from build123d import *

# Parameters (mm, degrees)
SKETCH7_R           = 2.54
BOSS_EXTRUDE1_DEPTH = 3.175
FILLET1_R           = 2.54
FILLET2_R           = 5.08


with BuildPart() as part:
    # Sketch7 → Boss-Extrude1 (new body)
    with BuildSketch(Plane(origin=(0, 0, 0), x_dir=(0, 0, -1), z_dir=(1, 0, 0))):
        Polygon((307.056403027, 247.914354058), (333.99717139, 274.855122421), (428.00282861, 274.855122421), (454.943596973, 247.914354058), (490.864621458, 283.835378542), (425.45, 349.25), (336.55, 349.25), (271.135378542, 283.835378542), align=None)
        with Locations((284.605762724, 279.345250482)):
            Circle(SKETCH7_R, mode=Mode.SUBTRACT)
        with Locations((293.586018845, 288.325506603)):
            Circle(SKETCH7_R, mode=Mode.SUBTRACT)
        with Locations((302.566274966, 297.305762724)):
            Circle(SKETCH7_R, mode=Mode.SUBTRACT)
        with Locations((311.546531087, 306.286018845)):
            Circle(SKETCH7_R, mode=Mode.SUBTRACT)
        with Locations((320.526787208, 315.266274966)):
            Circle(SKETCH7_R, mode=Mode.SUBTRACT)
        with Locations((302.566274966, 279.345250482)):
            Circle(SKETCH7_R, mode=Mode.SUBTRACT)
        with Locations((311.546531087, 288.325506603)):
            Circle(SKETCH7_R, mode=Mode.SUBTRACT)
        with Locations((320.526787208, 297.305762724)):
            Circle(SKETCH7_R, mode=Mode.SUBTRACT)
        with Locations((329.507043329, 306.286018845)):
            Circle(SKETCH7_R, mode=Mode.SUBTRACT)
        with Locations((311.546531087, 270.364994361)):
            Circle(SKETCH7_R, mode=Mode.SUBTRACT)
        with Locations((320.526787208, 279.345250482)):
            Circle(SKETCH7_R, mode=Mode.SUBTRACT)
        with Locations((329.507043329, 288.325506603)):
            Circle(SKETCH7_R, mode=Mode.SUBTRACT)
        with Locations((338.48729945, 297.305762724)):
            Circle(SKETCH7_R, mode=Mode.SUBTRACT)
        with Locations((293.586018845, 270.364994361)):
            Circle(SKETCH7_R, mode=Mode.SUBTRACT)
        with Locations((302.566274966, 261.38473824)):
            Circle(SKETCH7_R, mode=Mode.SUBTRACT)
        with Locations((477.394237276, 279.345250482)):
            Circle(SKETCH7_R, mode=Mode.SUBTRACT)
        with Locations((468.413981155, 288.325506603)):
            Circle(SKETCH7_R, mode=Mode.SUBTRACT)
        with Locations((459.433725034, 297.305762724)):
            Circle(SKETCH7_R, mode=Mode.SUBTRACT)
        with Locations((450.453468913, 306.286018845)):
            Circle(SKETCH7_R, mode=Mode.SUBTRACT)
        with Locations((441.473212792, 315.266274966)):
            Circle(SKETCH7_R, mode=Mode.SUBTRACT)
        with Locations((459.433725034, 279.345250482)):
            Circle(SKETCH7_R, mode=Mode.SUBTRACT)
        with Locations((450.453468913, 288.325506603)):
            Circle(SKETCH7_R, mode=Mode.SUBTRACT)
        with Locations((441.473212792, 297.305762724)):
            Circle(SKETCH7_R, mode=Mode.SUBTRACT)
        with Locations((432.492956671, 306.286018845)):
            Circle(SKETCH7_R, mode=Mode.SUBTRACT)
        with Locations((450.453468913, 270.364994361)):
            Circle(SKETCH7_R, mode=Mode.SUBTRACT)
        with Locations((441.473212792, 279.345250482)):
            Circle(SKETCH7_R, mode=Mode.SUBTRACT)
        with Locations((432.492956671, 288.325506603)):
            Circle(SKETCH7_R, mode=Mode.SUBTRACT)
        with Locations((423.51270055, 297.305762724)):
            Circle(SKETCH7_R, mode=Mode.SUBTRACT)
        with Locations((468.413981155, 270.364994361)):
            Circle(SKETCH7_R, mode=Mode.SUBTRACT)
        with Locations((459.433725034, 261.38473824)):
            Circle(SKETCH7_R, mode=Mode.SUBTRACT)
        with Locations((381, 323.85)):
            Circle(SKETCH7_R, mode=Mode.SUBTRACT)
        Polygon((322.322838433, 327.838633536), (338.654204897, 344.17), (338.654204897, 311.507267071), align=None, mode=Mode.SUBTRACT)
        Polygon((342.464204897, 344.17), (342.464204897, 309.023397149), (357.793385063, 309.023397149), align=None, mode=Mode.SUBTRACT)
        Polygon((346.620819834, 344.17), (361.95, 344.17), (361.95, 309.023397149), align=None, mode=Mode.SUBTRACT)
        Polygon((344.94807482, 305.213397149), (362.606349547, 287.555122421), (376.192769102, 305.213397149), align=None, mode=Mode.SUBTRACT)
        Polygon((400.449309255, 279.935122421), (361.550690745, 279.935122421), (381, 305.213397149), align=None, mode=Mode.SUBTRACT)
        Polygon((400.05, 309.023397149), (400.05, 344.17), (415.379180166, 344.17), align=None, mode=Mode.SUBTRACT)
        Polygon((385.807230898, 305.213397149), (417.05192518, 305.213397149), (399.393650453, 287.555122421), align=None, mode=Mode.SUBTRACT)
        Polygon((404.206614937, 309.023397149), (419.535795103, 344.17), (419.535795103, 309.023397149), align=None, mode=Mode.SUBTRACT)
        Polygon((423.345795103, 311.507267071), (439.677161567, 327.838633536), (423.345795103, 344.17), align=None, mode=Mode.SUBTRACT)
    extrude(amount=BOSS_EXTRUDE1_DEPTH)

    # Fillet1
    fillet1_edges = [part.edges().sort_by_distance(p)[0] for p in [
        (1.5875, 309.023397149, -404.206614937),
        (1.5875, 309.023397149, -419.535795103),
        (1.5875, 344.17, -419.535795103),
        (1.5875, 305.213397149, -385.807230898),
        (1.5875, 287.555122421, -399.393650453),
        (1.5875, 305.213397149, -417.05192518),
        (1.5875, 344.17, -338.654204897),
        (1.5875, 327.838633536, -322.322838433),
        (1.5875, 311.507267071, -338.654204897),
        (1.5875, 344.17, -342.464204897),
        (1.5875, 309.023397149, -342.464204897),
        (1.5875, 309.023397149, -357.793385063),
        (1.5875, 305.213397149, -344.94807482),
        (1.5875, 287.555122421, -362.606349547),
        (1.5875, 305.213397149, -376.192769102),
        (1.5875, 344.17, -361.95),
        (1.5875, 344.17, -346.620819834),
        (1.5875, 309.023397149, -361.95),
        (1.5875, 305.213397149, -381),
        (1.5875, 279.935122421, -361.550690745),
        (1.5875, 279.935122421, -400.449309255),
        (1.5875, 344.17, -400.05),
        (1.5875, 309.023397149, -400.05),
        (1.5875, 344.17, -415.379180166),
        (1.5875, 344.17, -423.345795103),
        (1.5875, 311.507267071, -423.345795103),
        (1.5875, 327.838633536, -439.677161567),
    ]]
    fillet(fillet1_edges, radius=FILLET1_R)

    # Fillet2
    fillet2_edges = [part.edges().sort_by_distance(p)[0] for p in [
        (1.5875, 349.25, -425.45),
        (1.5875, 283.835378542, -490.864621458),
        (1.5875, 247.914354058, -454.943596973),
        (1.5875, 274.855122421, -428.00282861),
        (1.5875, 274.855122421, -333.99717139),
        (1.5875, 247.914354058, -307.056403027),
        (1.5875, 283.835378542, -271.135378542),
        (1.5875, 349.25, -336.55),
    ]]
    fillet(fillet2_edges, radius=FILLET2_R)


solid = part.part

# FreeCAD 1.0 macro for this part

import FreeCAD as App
import Part
import Sketcher
from FreeCAD import Vector
Q = App.Units.Quantity


def edges_at(feature, points):
    """Names of the edges that pass closest to the given points."""
    edges = feature.Shape.Edges
    near = lambda p: min(range(len(edges)), key=lambda i: edges[i].distToShape(Part.Vertex(*p))[0])
    return sorted({f"Edge{near(p) + 1}" for p in points})


def add_polygon(sketch, points):
    """Adds a closed chain of lines whose ends are joined by coincident constraints."""
    first, n = sketch.GeometryCount, len(points)
    for a, b in zip(points, points[1:] + points[:1]):
        sketch.addGeometry(Part.LineSegment(App.Vector(*a, 0), App.Vector(*b, 0)), False)
    for i in range(n):
        sketch.addConstraint(Sketcher.Constraint("Coincident", first + i, 2, first + (i + 1) % n, 1))

doc = App.newDocument("Part")
body = doc.addObject("PartDesign::Body", "Body")

sketch1 = body.newObject("Sketcher::SketchObject", "Sketch")
sketch1.AttachmentSupport = (doc.getObject("YZ_Plane"), [""])
sketch1.MapMode = "FlatFace"
add_polygon(sketch1, [(247.914354, -307.056403), (274.855122, -333.997171), (274.855122, -428.002829), (247.914354, -454.943597), (283.835379, -490.864621), (349.25, -425.45), (349.25, -336.55), (283.835379, -271.135379)])
sketch1.addGeometry(Part.Circle(Vector(261.384738, -302.566275, 0), Vector(0, 0, 1), 2.54), False)
sketch1.addGeometry(Part.Circle(Vector(270.364994, -293.586019, 0), Vector(0, 0, 1), 2.54), False)
sketch1.addGeometry(Part.Circle(Vector(279.34525, -284.605763, 0), Vector(0, 0, 1), 2.54), False)
sketch1.addGeometry(Part.Circle(Vector(279.34525, -302.566275, 0), Vector(0, 0, 1), 2.54), False)
sketch1.addGeometry(Part.Circle(Vector(270.364994, -311.546531, 0), Vector(0, 0, 1), 2.54), False)
sketch1.addGeometry(Part.Circle(Vector(279.34525, -320.526787, 0), Vector(0, 0, 1), 2.54), False)
sketch1.addGeometry(Part.Circle(Vector(288.325507, -293.586019, 0), Vector(0, 0, 1), 2.54), False)
sketch1.addGeometry(Part.Circle(Vector(288.325507, -311.546531, 0), Vector(0, 0, 1), 2.54), False)
sketch1.addGeometry(Part.Circle(Vector(288.325507, -329.507043, 0), Vector(0, 0, 1), 2.54), False)
sketch1.addGeometry(Part.Circle(Vector(297.305763, -302.566275, 0), Vector(0, 0, 1), 2.54), False)
sketch1.addGeometry(Part.Circle(Vector(297.305763, -320.526787, 0), Vector(0, 0, 1), 2.54), False)
sketch1.addGeometry(Part.Circle(Vector(297.305763, -338.487299, 0), Vector(0, 0, 1), 2.54), False)
add_polygon(sketch1, [(287.555122, -362.60635), (305.213397, -344.948075), (305.213397, -376.192769)])
sketch1.addGeometry(Part.Circle(Vector(261.384738, -459.433725, 0), Vector(0, 0, 1), 2.54), False)
sketch1.addGeometry(Part.Circle(Vector(270.364994, -450.453469, 0), Vector(0, 0, 1), 2.54), False)
sketch1.addGeometry(Part.Circle(Vector(279.34525, -441.473213, 0), Vector(0, 0, 1), 2.54), False)
sketch1.addGeometry(Part.Circle(Vector(270.364994, -468.413981, 0), Vector(0, 0, 1), 2.54), False)
sketch1.addGeometry(Part.Circle(Vector(279.34525, -459.433725, 0), Vector(0, 0, 1), 2.54), False)
sketch1.addGeometry(Part.Circle(Vector(279.34525, -477.394237, 0), Vector(0, 0, 1), 2.54), False)
add_polygon(sketch1, [(305.213397, -381), (279.935122, -400.449309), (279.935122, -361.550691)])
add_polygon(sketch1, [(287.555122, -399.39365), (305.213397, -385.807231), (305.213397, -417.051925)])
sketch1.addGeometry(Part.Circle(Vector(297.305763, -423.512701, 0), Vector(0, 0, 1), 2.54), False)
sketch1.addGeometry(Part.Circle(Vector(288.325507, -432.492957, 0), Vector(0, 0, 1), 2.54), False)
sketch1.addGeometry(Part.Circle(Vector(288.325507, -450.453469, 0), Vector(0, 0, 1), 2.54), False)
sketch1.addGeometry(Part.Circle(Vector(288.325507, -468.413981, 0), Vector(0, 0, 1), 2.54), False)
sketch1.addGeometry(Part.Circle(Vector(297.305763, -441.473213, 0), Vector(0, 0, 1), 2.54), False)
sketch1.addGeometry(Part.Circle(Vector(297.305763, -459.433725, 0), Vector(0, 0, 1), 2.54), False)
sketch1.addGeometry(Part.Circle(Vector(306.286019, -311.546531, 0), Vector(0, 0, 1), 2.54), False)
sketch1.addGeometry(Part.Circle(Vector(306.286019, -329.507043, 0), Vector(0, 0, 1), 2.54), False)
sketch1.addGeometry(Part.Circle(Vector(315.266275, -320.526787, 0), Vector(0, 0, 1), 2.54), False)
add_polygon(sketch1, [(311.507267, -338.654205), (327.838634, -322.322838), (344.17, -338.654205)])
add_polygon(sketch1, [(309.023397, -342.464205), (344.17, -342.464205), (309.023397, -357.793385)])
add_polygon(sketch1, [(309.023397, -361.95), (344.17, -346.62082), (344.17, -361.95)])
sketch1.addGeometry(Part.Circle(Vector(306.286019, -432.492957, 0), Vector(0, 0, 1), 2.54), False)
sketch1.addGeometry(Part.Circle(Vector(306.286019, -450.453469, 0), Vector(0, 0, 1), 2.54), False)
sketch1.addGeometry(Part.Circle(Vector(315.266275, -441.473213, 0), Vector(0, 0, 1), 2.54), False)
sketch1.addGeometry(Part.Circle(Vector(323.85, -381, 0), Vector(0, 0, 1), 2.54), False)
add_polygon(sketch1, [(344.17, -415.37918), (309.023397, -400.05), (344.17, -400.05)])
add_polygon(sketch1, [(309.023397, -419.535795), (309.023397, -404.206615), (344.17, -419.535795)])
add_polygon(sketch1, [(327.838634, -439.677162), (311.507267, -423.345795), (344.17, -423.345795)])
sketch1.addConstraint([
    Sketcher.Constraint("Vertical", 1),
    Sketcher.Constraint("Vertical", 5),
    Sketcher.Constraint("Vertical", 21),
    Sketcher.Constraint("Vertical", 30),
    Sketcher.Constraint("Vertical", 33),
    Sketcher.Constraint("Horizontal", 46),
    Sketcher.Constraint("Horizontal", 47),
    Sketcher.Constraint("Vertical", 49),
    Sketcher.Constraint("Vertical", 51),
    Sketcher.Constraint("Horizontal", 52),
    Sketcher.Constraint("Horizontal", 58),
    Sketcher.Constraint("Vertical", 59),
    Sketcher.Constraint("Vertical", 60),
    Sketcher.Constraint("Horizontal", 62),
    Sketcher.Constraint("Horizontal", 64),
    Sketcher.Constraint("Equal", 8, 9),
    Sketcher.Constraint("Equal", 9, 10),
    Sketcher.Constraint("Equal", 10, 11),
    Sketcher.Constraint("Equal", 11, 12),
    Sketcher.Constraint("Equal", 12, 13),
    Sketcher.Constraint("Equal", 13, 14),
    Sketcher.Constraint("Equal", 14, 15),
    Sketcher.Constraint("Equal", 15, 16),
    Sketcher.Constraint("Equal", 16, 17),
    Sketcher.Constraint("Equal", 17, 18),
    Sketcher.Constraint("Equal", 18, 19),
    Sketcher.Constraint("Equal", 19, 23),
    Sketcher.Constraint("Equal", 23, 24),
    Sketcher.Constraint("Equal", 24, 25),
    Sketcher.Constraint("Equal", 25, 26),
    Sketcher.Constraint("Equal", 26, 27),
    Sketcher.Constraint("Equal", 27, 28),
    Sketcher.Constraint("Equal", 28, 35),
    Sketcher.Constraint("Equal", 35, 36),
    Sketcher.Constraint("Equal", 36, 37),
    Sketcher.Constraint("Equal", 37, 38),
    Sketcher.Constraint("Equal", 38, 39),
    Sketcher.Constraint("Equal", 39, 40),
    Sketcher.Constraint("Equal", 40, 41),
    Sketcher.Constraint("Equal", 41, 42),
    Sketcher.Constraint("Equal", 42, 43),
    Sketcher.Constraint("Equal", 43, 53),
    Sketcher.Constraint("Equal", 53, 54),
    Sketcher.Constraint("Equal", 54, 55),
    Sketcher.Constraint("Equal", 55, 56),
    Sketcher.Constraint("Perpendicular", 0, 2),
    Sketcher.Constraint("Perpendicular", 2, 3),
    Sketcher.Constraint("Perpendicular", 3, 4),
    Sketcher.Constraint("Perpendicular", 4, 6),
    Sketcher.Constraint("Perpendicular", 6, 7),
    Sketcher.Constraint("Parallel", 7, 20),
    Sketcher.Constraint("Parallel", 22, 31),
    Sketcher.Constraint("Parallel", 29, 32),
    Sketcher.Constraint("Perpendicular", 20, 34),
    Sketcher.Constraint("Perpendicular", 34, 44),
    Sketcher.Constraint("Perpendicular", 44, 45),
    Sketcher.Constraint("Parallel", 48, 50),
    Sketcher.Constraint("Parallel", 57, 61),
    Sketcher.Constraint("Parallel", 45, 63),
    Sketcher.Constraint("Perpendicular", 63, 65),
    Sketcher.Constraint("Horizontal", 8, 3, 11, 3),
    Sketcher.Constraint("Horizontal", 9, 3, 14, 3),
    Sketcher.Constraint("Horizontal", 12, 3, 15, 3),
    Sketcher.Constraint("Horizontal", 11, 3, 17, 3),
    Sketcher.Constraint("Horizontal", 13, 3, 18, 3),
    Sketcher.Constraint("Horizontal", 23, 3, 27, 3),
    Sketcher.Constraint("Horizontal", 24, 3, 37, 3),
    Sketcher.Constraint("Horizontal", 26, 3, 38, 3),
    Sketcher.Constraint("Horizontal", 25, 3, 39, 3),
    Sketcher.Constraint("Horizontal", 27, 3, 40, 3),
    Sketcher.Constraint("Horizontal", 15, 3, 41, 3),
    Sketcher.Constraint("Horizontal", 16, 3, 42, 3),
    Sketcher.Constraint("Horizontal", 18, 3, 43, 3),
    Sketcher.Constraint("Horizontal", 36, 3, 53, 3),
    Sketcher.Constraint("Horizontal", 37, 3, 54, 3),
    Sketcher.Constraint("Horizontal", 39, 3, 55, 3),
    Sketcher.Constraint("Horizontal", 56, 3, 31, 2),
    Sketcher.Constraint("Vertical", 10, 3, 11, 3),
    Sketcher.Constraint("Vertical", 9, 3, 12, 3),
    Sketcher.Constraint("Vertical", 11, 3, 13, 3),
    Sketcher.Constraint("Vertical", 14, 3, 15, 3),
    Sketcher.Constraint("Vertical", 15, 3, 16, 3),
    Sketcher.Constraint("Vertical", 17, 3, 18, 3),
    Sketcher.Constraint("Vertical", 18, 3, 19, 3),
    Sketcher.Constraint("Vertical", 8, 3, 23, 3),
    Sketcher.Constraint("Vertical", 12, 3, 24, 3),
    Sketcher.Constraint("Vertical", 13, 3, 25, 3),
    Sketcher.Constraint("Vertical", 24, 3, 26, 3),
    Sketcher.Constraint("Vertical", 25, 3, 27, 3),
    Sketcher.Constraint("Vertical", 27, 3, 28, 3),
    Sketcher.Constraint("Vertical", 19, 3, 35, 3),
    Sketcher.Constraint("Vertical", 16, 3, 36, 3),
    Sketcher.Constraint("Vertical", 36, 3, 37, 3),
    Sketcher.Constraint("Vertical", 37, 3, 38, 3),
    Sketcher.Constraint("Vertical", 35, 3, 39, 3),
    Sketcher.Constraint("Vertical", 39, 3, 40, 3),
    Sketcher.Constraint("Vertical", 41, 3, 42, 3),
    Sketcher.Constraint("Vertical", 42, 3, 53, 3),
    Sketcher.Constraint("Vertical", 53, 3, 54, 3),
    Sketcher.Constraint("Vertical", 43, 3, 55, 3),
    Sketcher.Constraint("Vertical", 3, 2, 6, 2),
    Sketcher.Constraint("Vertical", 2, 2, 7, 2),
    Sketcher.Constraint("Vertical", 21, 2, 31, 2),
    Sketcher.Constraint("Vertical", 31, 2, 32, 2),
    Sketcher.Constraint("Vertical", 22, 2, 34, 2),
    Sketcher.Constraint("Vertical", 45, 2, 47, 2),
    Sketcher.Constraint("Vertical", 47, 2, 50, 2),
    Sketcher.Constraint("Vertical", 49, 2, 52, 2),
    Sketcher.Constraint("Vertical", 52, 2, 57, 2),
    Sketcher.Constraint("Vertical", 51, 2, 58, 2),
    Sketcher.Constraint("Vertical", 57, 2, 60, 2),
    Sketcher.Constraint("Vertical", 59, 2, 61, 2),
    Sketcher.Constraint("Vertical", 46, 2, 63, 2),
    Sketcher.Constraint("Vertical", 61, 2, 64, 2),
    Sketcher.Constraint("Vertical", 44, 2, 65, 2),
    Sketcher.Constraint("Equal", 21, 33),
    Sketcher.Constraint("Equal", 51, 59),
    Sketcher.Constraint("Diameter", 8, Q("0.2 in")),
    Sketcher.Constraint("Distance", 3, Q("2 in")),
    Sketcher.Constraint("DistanceY", 5, 1, 5, 2, Q("3.5 in")),
    Sketcher.Constraint("DistanceY", 56, 3, -1, 1, Q("15 in")),
    Sketcher.Constraint("Distance", 0, Q("1.5 in")),
    Sketcher.Constraint("DistanceX", -1, 1, 56, 3, Q("12.75 in")),
    Sketcher.Constraint("DistanceX", -1, 1, 4, 2, Q("13.75 in")),
    Sketcher.Constraint("DistanceY", 4, 2, -1, 1, Q("16.75 in")),
    Sketcher.Constraint("DistanceX", -1, 1, 45, 2, Q("13.55 in")),
    Sketcher.Constraint("DistanceY", 51, 2, -1, 1, Q("14.25 in")),
    Sketcher.Constraint("DistanceY", 57, 2, -1, 1, Q("15.75 in")),
    Sketcher.Constraint("DistanceY", 30, 1, 30, 2, Q("38.898619 mm")),
    Sketcher.Constraint("DistanceY", 49, 1, 49, 2, Q("15.32918 mm")),
    Sketcher.Constraint("DistanceY", 19, 3, -1, 1, Q("338.487299 mm")),
    Sketcher.Constraint("DistanceY", 35, 3, -1, 1, Q("423.512701 mm")),
    Sketcher.Constraint("Distance", 20, Q("24.972572 mm")),
    Sketcher.Constraint("Distance", 22, Q("22.280158 mm")),
    Sketcher.Constraint("Distance", 44, Q("23.09604 mm")),
    Sketcher.Constraint("DistanceX", 47, 1, 47, 2, Q("35.146603 mm")),
    Sketcher.Constraint("DistanceY", 1, 2, 1, 1, Q("94.005657 mm")),
    Sketcher.Constraint("DistanceX", -1, 1, 8, 3, Q("261.384738 mm")),
    Sketcher.Constraint("DistanceY", 9, 3, -1, 1, Q("293.586019 mm")),
    Sketcher.Constraint("DistanceX", -1, 1, 10, 3, Q("279.34525 mm")),
    Sketcher.Constraint("DistanceY", 12, 3, -1, 1, Q("311.546531 mm")),
    Sketcher.Constraint("DistanceY", 24, 3, -1, 1, Q("450.453469 mm")),
    Sketcher.Constraint("DistanceY", 26, 3, -1, 1, Q("468.413981 mm")),
    Sketcher.Constraint("DistanceX", -1, 1, 41, 3, Q("306.286019 mm")),
    Sketcher.Constraint("DistanceY", 21, 2, -1, 1, Q("376.192769 mm")),
    Sketcher.Constraint("DistanceY", 32, 2, -1, 1, Q("385.807231 mm")),
    Sketcher.Constraint("DistanceY", 44, 2, -1, 1, Q("322.322838 mm")),
    Sketcher.Constraint("DistanceY", 65, 2, -1, 1, Q("439.677162 mm")),
    Sketcher.Constraint("DistanceY", 8, 3, -1, 1, Q("302.566275 mm")),
    Sketcher.Constraint("DistanceX", -1, 1, 9, 3, Q("270.364994 mm")),
    Sketcher.Constraint("DistanceY", 10, 3, -1, 1, Q("284.605763 mm")),
    Sketcher.Constraint("DistanceY", 13, 3, -1, 1, Q("320.526787 mm")),
    Sketcher.Constraint("DistanceX", -1, 1, 14, 3, Q("288.325507 mm")),
    Sketcher.Constraint("DistanceY", 16, 3, -1, 1, Q("329.507043 mm")),
    Sketcher.Constraint("DistanceX", -1, 1, 17, 3, Q("297.305763 mm")),
    Sketcher.Constraint("DistanceY", 23, 3, -1, 1, Q("459.433725 mm")),
    Sketcher.Constraint("DistanceY", 25, 3, -1, 1, Q("441.473213 mm")),
    Sketcher.Constraint("DistanceY", 28, 3, -1, 1, Q("477.394237 mm")),
    Sketcher.Constraint("DistanceY", 36, 3, -1, 1, Q("432.492957 mm")),
    Sketcher.Constraint("DistanceX", -1, 1, 43, 3, Q("315.266275 mm")),
    Sketcher.Constraint("DistanceX", -1, 1, 20, 2, Q("305.213397 mm")),
    Sketcher.Constraint("DistanceY", 47, 2, -1, 1, Q("342.464205 mm")),
    Sketcher.Constraint("DistanceY", 60, 2, -1, 1, Q("404.206615 mm")),
])
pad1 = body.newObject("PartDesign::Pad", "Pad")
pad1.Profile = sketch1
pad1.Length = Q("0.125 in")
doc.recompute()

fillet = body.newObject("PartDesign::Fillet", "Fillet")
fillet.Base = (pad1, edges_at(pad1, [
    (1.587, 309.023, -404.207),
    (1.587, 309.023, -419.536),
    (1.587, 344.17, -419.536),
    (1.587, 305.213, -385.807),
    (1.587, 287.555, -399.394),
    (1.587, 305.213, -417.052),
    (1.587, 344.17, -338.654),
    (1.587, 327.839, -322.323),
    (1.587, 311.507, -338.654),
    (1.587, 344.17, -342.464),
    (1.587, 309.023, -342.464),
    (1.587, 309.023, -357.793),
    (1.587, 305.213, -344.948),
    (1.587, 287.555, -362.606),
    (1.587, 305.213, -376.193),
    (1.587, 344.17, -361.95),
    (1.587, 344.17, -346.621),
    (1.587, 309.023, -361.95),
    (1.587, 305.213, -381),
    (1.587, 279.935, -361.551),
    (1.587, 279.935, -400.449),
    (1.587, 344.17, -400.05),
    (1.587, 309.023, -400.05),
    (1.587, 344.17, -415.379),
    (1.587, 344.17, -423.346),
    (1.587, 311.507, -423.346),
    (1.587, 327.839, -439.677),
]))
fillet.Radius = Q("0.1 in")
doc.recompute()

fillet2 = body.newObject("PartDesign::Fillet", "Fillet001")
fillet2.Base = (fillet, edges_at(fillet, [
    (1.587, 349.25, -425.45),
    (1.587, 283.835, -490.865),
    (1.587, 247.914, -454.944),
    (1.587, 274.855, -428.003),
    (1.587, 274.855, -333.997),
    (1.587, 247.914, -307.056),
    (1.587, 283.835, -271.135),
    (1.587, 349.25, -336.55),
]))
fillet2.Radius = Q("0.2 in")

doc.recompute()
